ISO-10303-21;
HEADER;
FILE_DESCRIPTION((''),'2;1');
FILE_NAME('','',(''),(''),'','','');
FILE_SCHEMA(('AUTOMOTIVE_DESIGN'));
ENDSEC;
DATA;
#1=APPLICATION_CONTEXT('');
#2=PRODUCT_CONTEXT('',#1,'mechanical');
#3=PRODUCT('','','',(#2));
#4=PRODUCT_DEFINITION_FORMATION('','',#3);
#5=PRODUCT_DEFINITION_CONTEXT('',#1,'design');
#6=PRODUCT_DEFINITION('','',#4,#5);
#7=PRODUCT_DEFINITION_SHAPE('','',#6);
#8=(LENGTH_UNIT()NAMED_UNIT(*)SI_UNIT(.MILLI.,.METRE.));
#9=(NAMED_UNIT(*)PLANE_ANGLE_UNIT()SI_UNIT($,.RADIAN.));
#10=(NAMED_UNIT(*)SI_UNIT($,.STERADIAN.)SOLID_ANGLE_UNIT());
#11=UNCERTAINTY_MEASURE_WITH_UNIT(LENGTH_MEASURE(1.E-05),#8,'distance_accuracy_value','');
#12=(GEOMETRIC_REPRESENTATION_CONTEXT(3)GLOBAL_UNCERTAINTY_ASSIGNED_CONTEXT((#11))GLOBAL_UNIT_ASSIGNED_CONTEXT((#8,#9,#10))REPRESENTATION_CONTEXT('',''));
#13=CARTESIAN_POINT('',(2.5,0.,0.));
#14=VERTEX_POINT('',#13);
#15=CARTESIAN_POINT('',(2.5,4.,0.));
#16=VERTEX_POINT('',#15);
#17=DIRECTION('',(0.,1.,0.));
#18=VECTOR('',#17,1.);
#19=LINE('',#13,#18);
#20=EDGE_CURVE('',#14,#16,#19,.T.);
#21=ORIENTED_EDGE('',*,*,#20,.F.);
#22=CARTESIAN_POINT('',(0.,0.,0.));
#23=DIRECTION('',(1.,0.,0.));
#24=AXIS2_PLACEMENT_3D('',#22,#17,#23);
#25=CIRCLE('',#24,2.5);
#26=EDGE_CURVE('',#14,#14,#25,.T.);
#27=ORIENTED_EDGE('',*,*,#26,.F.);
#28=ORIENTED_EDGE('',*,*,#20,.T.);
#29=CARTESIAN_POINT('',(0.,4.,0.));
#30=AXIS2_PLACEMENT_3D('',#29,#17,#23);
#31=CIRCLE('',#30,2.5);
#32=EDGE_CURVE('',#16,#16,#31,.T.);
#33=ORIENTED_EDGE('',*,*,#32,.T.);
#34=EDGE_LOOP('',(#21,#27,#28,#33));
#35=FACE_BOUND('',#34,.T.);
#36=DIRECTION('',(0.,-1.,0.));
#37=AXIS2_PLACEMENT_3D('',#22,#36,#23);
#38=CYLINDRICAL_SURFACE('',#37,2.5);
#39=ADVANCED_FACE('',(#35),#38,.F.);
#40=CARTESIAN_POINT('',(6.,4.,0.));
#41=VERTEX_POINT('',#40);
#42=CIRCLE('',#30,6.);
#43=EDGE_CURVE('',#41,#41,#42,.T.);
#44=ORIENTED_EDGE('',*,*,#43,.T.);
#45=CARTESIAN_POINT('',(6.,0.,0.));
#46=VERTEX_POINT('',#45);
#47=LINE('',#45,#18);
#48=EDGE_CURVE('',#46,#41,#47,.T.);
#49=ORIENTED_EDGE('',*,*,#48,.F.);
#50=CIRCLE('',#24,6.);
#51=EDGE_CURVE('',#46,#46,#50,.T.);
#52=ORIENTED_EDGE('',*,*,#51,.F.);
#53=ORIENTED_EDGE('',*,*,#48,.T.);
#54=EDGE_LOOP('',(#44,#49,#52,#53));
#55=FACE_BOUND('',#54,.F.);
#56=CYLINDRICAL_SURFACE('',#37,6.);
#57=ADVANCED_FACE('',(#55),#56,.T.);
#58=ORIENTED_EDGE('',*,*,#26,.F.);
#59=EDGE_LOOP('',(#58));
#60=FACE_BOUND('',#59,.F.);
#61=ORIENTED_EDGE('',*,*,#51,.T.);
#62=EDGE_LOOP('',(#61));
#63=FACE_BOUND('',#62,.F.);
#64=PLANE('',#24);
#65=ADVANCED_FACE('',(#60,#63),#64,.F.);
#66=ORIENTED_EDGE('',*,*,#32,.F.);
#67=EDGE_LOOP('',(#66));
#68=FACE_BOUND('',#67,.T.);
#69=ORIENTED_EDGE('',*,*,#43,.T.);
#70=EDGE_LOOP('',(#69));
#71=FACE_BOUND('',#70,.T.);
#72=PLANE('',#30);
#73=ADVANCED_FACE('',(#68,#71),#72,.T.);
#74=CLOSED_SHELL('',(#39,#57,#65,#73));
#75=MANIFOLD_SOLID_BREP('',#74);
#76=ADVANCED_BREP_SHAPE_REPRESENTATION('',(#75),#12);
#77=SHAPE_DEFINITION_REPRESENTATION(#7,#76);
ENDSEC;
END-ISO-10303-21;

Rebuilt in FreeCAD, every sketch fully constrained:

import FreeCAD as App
import Part
import Sketcher

doc = App.newDocument("Part")
body = doc.addObject("PartDesign::Body", "Body")

sketch1 = doc.addObject("Sketcher::SketchObject", "Sketch")
body.addObject(sketch1)
sketch1.AttachmentSupport = (doc.XZ_Plane, [""])
sketch1.MapMode = "FlatFace"
sketch1.addGeometry(Part.Circle(App.Vector(0, 0, 0), App.Vector(0, 0, 1), 6), False)
sketch1.addGeometry(Part.Circle(App.Vector(0, 0, 0), App.Vector(0, 0, 1), 2.5), False)
sketch1.addConstraint(Sketcher.Constraint("Coincident", 0, 3, -1, 1))
sketch1.addConstraint(Sketcher.Constraint("Coincident", 1, 3, -1, 1))
sketch1.addConstraint(Sketcher.Constraint("Diameter", 0, 12.0))
sketch1.addConstraint(Sketcher.Constraint("Diameter", 1, 5.0))
pad1 = doc.addObject("PartDesign::Pad", "Pad")
body.addObject(pad1)
pad1.Profile = sketch1
pad1.Length = 4
pad1.Reversed = True

doc.recompute()
